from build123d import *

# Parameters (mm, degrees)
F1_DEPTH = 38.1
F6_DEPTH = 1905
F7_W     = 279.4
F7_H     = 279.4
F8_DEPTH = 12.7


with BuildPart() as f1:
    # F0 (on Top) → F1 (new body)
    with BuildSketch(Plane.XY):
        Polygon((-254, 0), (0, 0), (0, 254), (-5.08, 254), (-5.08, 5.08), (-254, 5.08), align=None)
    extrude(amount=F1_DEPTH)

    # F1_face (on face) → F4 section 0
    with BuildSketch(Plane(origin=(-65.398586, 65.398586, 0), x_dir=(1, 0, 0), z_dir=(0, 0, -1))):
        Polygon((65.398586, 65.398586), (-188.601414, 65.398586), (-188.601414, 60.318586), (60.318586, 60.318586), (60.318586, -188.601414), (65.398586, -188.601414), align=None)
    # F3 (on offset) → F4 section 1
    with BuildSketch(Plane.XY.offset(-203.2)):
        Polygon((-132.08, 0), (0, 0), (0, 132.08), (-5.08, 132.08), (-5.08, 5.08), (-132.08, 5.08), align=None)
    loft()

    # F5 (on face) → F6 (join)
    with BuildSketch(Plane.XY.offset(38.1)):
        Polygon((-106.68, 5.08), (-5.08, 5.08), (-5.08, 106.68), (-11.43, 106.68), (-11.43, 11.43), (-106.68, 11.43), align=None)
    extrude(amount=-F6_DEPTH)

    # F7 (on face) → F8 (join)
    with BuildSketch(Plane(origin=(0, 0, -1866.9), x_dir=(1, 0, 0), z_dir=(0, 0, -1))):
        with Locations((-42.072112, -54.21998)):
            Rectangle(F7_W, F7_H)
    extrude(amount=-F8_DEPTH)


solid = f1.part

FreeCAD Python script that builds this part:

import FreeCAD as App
import Part
import Sketcher

V = App.Vector
Q = App.Units.Quantity

doc = App.newDocument("Part")
body = doc.addObject("PartDesign::Body", "Body")

# Sketch on XY plane
sketch1 = body.newObject("Sketcher::SketchObject", "Sketch")
sketch1.AttachmentSupport = (doc.getObject("XY_Plane"), [""])
sketch1.MapMode = "FlatFace"
sketch1.addGeometry(Part.LineSegment(V(-254, 0, 0), V(0, 0, 0)), False)
sketch1.addGeometry(Part.LineSegment(V(0, 0, 0), V(0, 254, 0)), False)
sketch1.addGeometry(Part.LineSegment(V(0, 254, 0), V(-5, 254, 0)), False)
sketch1.addGeometry(Part.LineSegment(V(-5, 254, 0), V(-5, 5, 0)), False)
sketch1.addGeometry(Part.LineSegment(V(-5, 5, 0), V(-254, 5, 0)), False)
sketch1.addGeometry(Part.LineSegment(V(-254, 5, 0), V(-254, 0, 0)), False)
sketch1.addConstraint(Sketcher.Constraint("Coincident", 0, 2, 1, 1))
sketch1.addConstraint(Sketcher.Constraint("Coincident", 1, 2, 2, 1))
sketch1.addConstraint(Sketcher.Constraint("Coincident", 2, 2, 3, 1))
sketch1.addConstraint(Sketcher.Constraint("Coincident", 3, 2, 4, 1))
sketch1.addConstraint(Sketcher.Constraint("Coincident", 4, 2, 5, 1))
sketch1.addConstraint(Sketcher.Constraint("Coincident", 5, 2, 0, 1))
sketch1.addConstraint(Sketcher.Constraint("Horizontal", 0))
sketch1.addConstraint(Sketcher.Constraint("Vertical", 1))
sketch1.addConstraint(Sketcher.Constraint("Horizontal", 2))
sketch1.addConstraint(Sketcher.Constraint("Vertical", 3))
sketch1.addConstraint(Sketcher.Constraint("Horizontal", 4))
sketch1.addConstraint(Sketcher.Constraint("Vertical", 5))
sketch1.addConstraint(Sketcher.Constraint("Coincident", 0, 2, -1, 1))
sketch1.addConstraint(Sketcher.Constraint("Equal", 0, 1))
sketch1.addConstraint(Sketcher.Constraint("Equal", 4, 3))
sketch1.addConstraint(Sketcher.Constraint("DistanceX", 0, 1, 0, 2, Q("10 in")))
sketch1.addConstraint(Sketcher.Constraint("DistanceX", 2, 2, 2, 1, Q("0.2 in")))
pad1 = body.newObject("PartDesign::Pad", "Pad")
pad1.Profile = sketch1
pad1.Length = Q("1.5 in")

# Sketch on XY plane
sketch2 = body.newObject("Sketcher::SketchObject", "Sketch001")
sketch2.AttachmentSupport = (doc.getObject("XY_Plane"), [""])
sketch2.MapMode = "FlatFace"
sketch2.addGeometry(Part.LineSegment(V(0, 0, 0), V(-254, 0, 0)), False)
sketch2.addGeometry(Part.LineSegment(V(-254, 0, 0), V(-254, 5, 0)), False)
sketch2.addGeometry(Part.LineSegment(V(-254, 5, 0), V(-5, 5, 0)), False)
sketch2.addGeometry(Part.LineSegment(V(-5, 5, 0), V(-5, 254, 0)), False)
sketch2.addGeometry(Part.LineSegment(V(-5, 254, 0), V(0, 254, 0)), False)
sketch2.addGeometry(Part.LineSegment(V(0, 254, 0), V(0, 0, 0)), False)
sketch2.addConstraint(Sketcher.Constraint("Coincident", 0, 2, 1, 1))
sketch2.addConstraint(Sketcher.Constraint("Coincident", 1, 2, 2, 1))
sketch2.addConstraint(Sketcher.Constraint("Coincident", 2, 2, 3, 1))
sketch2.addConstraint(Sketcher.Constraint("Coincident", 3, 2, 4, 1))
sketch2.addConstraint(Sketcher.Constraint("Coincident", 4, 2, 5, 1))
sketch2.addConstraint(Sketcher.Constraint("Coincident", 5, 2, 0, 1))
sketch2.addConstraint(Sketcher.Constraint("Horizontal", 0))
sketch2.addConstraint(Sketcher.Constraint("Vertical", 1))
sketch2.addConstraint(Sketcher.Constraint("Horizontal", 2))
sketch2.addConstraint(Sketcher.Constraint("Vertical", 3))
sketch2.addConstraint(Sketcher.Constraint("Horizontal", 4))
sketch2.addConstraint(Sketcher.Constraint("Vertical", 5))
sketch2.addConstraint(Sketcher.Constraint("Coincident", 5, 2, -1, 1))
sketch2.addConstraint(Sketcher.Constraint("Equal", 4, 1))
sketch2.addConstraint(Sketcher.Constraint("Equal", 2, 3))
sketch2.addConstraint(Sketcher.Constraint("DistanceX", 0, 2, 0, 1, Q("10 in")))
sketch2.addConstraint(Sketcher.Constraint("DistanceX", 2, 1, 2, 2, Q("9.8 in")))

# Sketch on XY plane
sketch3 = body.newObject("Sketcher::SketchObject", "Sketch002")
sketch3.AttachmentSupport = (doc.getObject("XY_Plane"), [""])
sketch3.MapMode = "FlatFace"
sketch3.AttachmentOffset = App.Placement(V(0, 0, -8 * 25.4), App.Rotation())
sketch3.addGeometry(Part.LineSegment(V(-132, 0, 0), V(0, 0, 0)), False)
sketch3.addGeometry(Part.LineSegment(V(0, 0, 0), V(0, 132, 0)), False)
sketch3.addGeometry(Part.LineSegment(V(0, 132, 0), V(-5, 132, 0)), False)
sketch3.addGeometry(Part.LineSegment(V(-5, 132, 0), V(-5, 5, 0)), False)
sketch3.addGeometry(Part.LineSegment(V(-5, 5, 0), V(-132, 5, 0)), False)
sketch3.addGeometry(Part.LineSegment(V(-132, 5, 0), V(-132, 0, 0)), False)
sketch3.addConstraint(Sketcher.Constraint("Coincident", 0, 2, 1, 1))
sketch3.addConstraint(Sketcher.Constraint("Coincident", 1, 2, 2, 1))
sketch3.addConstraint(Sketcher.Constraint("Coincident", 2, 2, 3, 1))
sketch3.addConstraint(Sketcher.Constraint("Coincident", 3, 2, 4, 1))
sketch3.addConstraint(Sketcher.Constraint("Coincident", 4, 2, 5, 1))
sketch3.addConstraint(Sketcher.Constraint("Coincident", 5, 2, 0, 1))
sketch3.addConstraint(Sketcher.Constraint("Horizontal", 0))
sketch3.addConstraint(Sketcher.Constraint("Vertical", 1))
sketch3.addConstraint(Sketcher.Constraint("Horizontal", 2))
sketch3.addConstraint(Sketcher.Constraint("Vertical", 3))
sketch3.addConstraint(Sketcher.Constraint("Horizontal", 4))
sketch3.addConstraint(Sketcher.Constraint("Vertical", 5))
sketch3.addConstraint(Sketcher.Constraint("Coincident", 0, 2, -1, 1))
sketch3.addConstraint(Sketcher.Constraint("Equal", 0, 1))
sketch3.addConstraint(Sketcher.Constraint("Equal", 4, 3))
sketch3.addConstraint(Sketcher.Constraint("DistanceX", 4, 2, 4, 1, Q("5 in")))
sketch3.addConstraint(Sketcher.Constraint("DistanceX", 0, 1, 0, 2, Q("5.2 in")))

additiveloft = body.newObject("PartDesign::AdditiveLoft", "AdditiveLoft")
additiveloft.Profile = sketch2
additiveloft.Sections = [sketch3]

# Sketch on XY plane
sketch4 = body.newObject("Sketcher::SketchObject", "Sketch003")
sketch4.AttachmentSupport = (doc.getObject("XY_Plane"), [""])
sketch4.MapMode = "FlatFace"
sketch4.AttachmentOffset = App.Placement(V(0, 0, 1.5 * 25.4), App.Rotation())
sketch4.addGeometry(Part.LineSegment(V(-107, 5, 0), V(-5, 5, 0)), False)
sketch4.addGeometry(Part.LineSegment(V(-5, 5, 0), V(-5, 107, 0)), False)
sketch4.addGeometry(Part.LineSegment(V(-5, 107, 0), V(-11, 107, 0)), False)
sketch4.addGeometry(Part.LineSegment(V(-11, 107, 0), V(-11, 11, 0)), False)
sketch4.addGeometry(Part.LineSegment(V(-11, 11, 0), V(-107, 11, 0)), False)
sketch4.addGeometry(Part.LineSegment(V(-107, 11, 0), V(-107, 5, 0)), False)
sketch4.addConstraint(Sketcher.Constraint("Coincident", 0, 2, 1, 1))
sketch4.addConstraint(Sketcher.Constraint("Coincident", 1, 2, 2, 1))
sketch4.addConstraint(Sketcher.Constraint("Coincident", 2, 2, 3, 1))
sketch4.addConstraint(Sketcher.Constraint("Coincident", 3, 2, 4, 1))
sketch4.addConstraint(Sketcher.Constraint("Coincident", 4, 2, 5, 1))
sketch4.addConstraint(Sketcher.Constraint("Coincident", 5, 2, 0, 1))
sketch4.addConstraint(Sketcher.Constraint("Horizontal", 0))
sketch4.addConstraint(Sketcher.Constraint("Vertical", 1))
sketch4.addConstraint(Sketcher.Constraint("Horizontal", 2))
sketch4.addConstraint(Sketcher.Constraint("Vertical", 3))
sketch4.addConstraint(Sketcher.Constraint("Horizontal", 4))
sketch4.addConstraint(Sketcher.Constraint("Vertical", 5))
sketch4.addConstraint(Sketcher.Constraint("Equal", 0, 1))
sketch4.addConstraint(Sketcher.Constraint("Equal", 4, 3))
sketch4.addConstraint(Sketcher.Constraint("DistanceX", 0, 1, 0, 2, Q("4 in")))
sketch4.addConstraint(Sketcher.Constraint("DistanceX", 2, 2, 2, 1, Q("0.25 in")))
sketch4.addConstraint(Sketcher.Constraint("DistanceX", 0, 2, -1, 1, Q("0.2 in")))
sketch4.addConstraint(Sketcher.Constraint("DistanceY", -1, 1, 0, 2, Q("0.2 in")))
pad2 = body.newObject("PartDesign::Pad", "Pad001")
pad2.Profile = sketch4
pad2.Length = Q("75 in")
pad2.Reversed = True

# Sketch on XY plane
sketch5 = body.newObject("Sketcher::SketchObject", "Sketch004")
sketch5.AttachmentSupport = (doc.getObject("XY_Plane"), [""])
sketch5.MapMode = "FlatFace"
sketch5.AttachmentOffset = App.Placement(V(0, 0, -73.5 * 25.4), App.Rotation())
sketch5.addGeometry(Part.LineSegment(V(-182, -85, 0), V(-182, 194, 0)), False)
sketch5.addGeometry(Part.LineSegment(V(-182, 194, 0), V(98, 194, 0)), False)
sketch5.addGeometry(Part.LineSegment(V(98, 194, 0), V(98, -85, 0)), False)
sketch5.addGeometry(Part.LineSegment(V(98, -85, 0), V(-182, -85, 0)), False)
sketch5.addConstraint(Sketcher.Constraint("Coincident", 0, 2, 1, 1))
sketch5.addConstraint(Sketcher.Constraint("Coincident", 1, 2, 2, 1))
sketch5.addConstraint(Sketcher.Constraint("Coincident", 2, 2, 3, 1))
sketch5.addConstraint(Sketcher.Constraint("Coincident", 3, 2, 0, 1))
sketch5.addConstraint(Sketcher.Constraint("Vertical", 0))
sketch5.addConstraint(Sketcher.Constraint("Horizontal", 1))
sketch5.addConstraint(Sketcher.Constraint("Vertical", 2))
sketch5.addConstraint(Sketcher.Constraint("Horizontal", 3))
sketch5.addConstraint(Sketcher.Constraint("Equal", 3, 0))
sketch5.addConstraint(Sketcher.Constraint("DistanceX", 1, 1, 1, 2, Q("11 in")))
sketch5.addConstraint(Sketcher.Constraint("DistanceX", 0, 2, -1, 1, 181.772112))
sketch5.addConstraint(Sketcher.Constraint("DistanceY", -1, 1, 0, 2, 193.91998))
pad3 = body.newObject("PartDesign::Pad", "Pad002")
pad3.Profile = sketch5
pad3.Length = Q("0.5 in")

doc.recompute()
